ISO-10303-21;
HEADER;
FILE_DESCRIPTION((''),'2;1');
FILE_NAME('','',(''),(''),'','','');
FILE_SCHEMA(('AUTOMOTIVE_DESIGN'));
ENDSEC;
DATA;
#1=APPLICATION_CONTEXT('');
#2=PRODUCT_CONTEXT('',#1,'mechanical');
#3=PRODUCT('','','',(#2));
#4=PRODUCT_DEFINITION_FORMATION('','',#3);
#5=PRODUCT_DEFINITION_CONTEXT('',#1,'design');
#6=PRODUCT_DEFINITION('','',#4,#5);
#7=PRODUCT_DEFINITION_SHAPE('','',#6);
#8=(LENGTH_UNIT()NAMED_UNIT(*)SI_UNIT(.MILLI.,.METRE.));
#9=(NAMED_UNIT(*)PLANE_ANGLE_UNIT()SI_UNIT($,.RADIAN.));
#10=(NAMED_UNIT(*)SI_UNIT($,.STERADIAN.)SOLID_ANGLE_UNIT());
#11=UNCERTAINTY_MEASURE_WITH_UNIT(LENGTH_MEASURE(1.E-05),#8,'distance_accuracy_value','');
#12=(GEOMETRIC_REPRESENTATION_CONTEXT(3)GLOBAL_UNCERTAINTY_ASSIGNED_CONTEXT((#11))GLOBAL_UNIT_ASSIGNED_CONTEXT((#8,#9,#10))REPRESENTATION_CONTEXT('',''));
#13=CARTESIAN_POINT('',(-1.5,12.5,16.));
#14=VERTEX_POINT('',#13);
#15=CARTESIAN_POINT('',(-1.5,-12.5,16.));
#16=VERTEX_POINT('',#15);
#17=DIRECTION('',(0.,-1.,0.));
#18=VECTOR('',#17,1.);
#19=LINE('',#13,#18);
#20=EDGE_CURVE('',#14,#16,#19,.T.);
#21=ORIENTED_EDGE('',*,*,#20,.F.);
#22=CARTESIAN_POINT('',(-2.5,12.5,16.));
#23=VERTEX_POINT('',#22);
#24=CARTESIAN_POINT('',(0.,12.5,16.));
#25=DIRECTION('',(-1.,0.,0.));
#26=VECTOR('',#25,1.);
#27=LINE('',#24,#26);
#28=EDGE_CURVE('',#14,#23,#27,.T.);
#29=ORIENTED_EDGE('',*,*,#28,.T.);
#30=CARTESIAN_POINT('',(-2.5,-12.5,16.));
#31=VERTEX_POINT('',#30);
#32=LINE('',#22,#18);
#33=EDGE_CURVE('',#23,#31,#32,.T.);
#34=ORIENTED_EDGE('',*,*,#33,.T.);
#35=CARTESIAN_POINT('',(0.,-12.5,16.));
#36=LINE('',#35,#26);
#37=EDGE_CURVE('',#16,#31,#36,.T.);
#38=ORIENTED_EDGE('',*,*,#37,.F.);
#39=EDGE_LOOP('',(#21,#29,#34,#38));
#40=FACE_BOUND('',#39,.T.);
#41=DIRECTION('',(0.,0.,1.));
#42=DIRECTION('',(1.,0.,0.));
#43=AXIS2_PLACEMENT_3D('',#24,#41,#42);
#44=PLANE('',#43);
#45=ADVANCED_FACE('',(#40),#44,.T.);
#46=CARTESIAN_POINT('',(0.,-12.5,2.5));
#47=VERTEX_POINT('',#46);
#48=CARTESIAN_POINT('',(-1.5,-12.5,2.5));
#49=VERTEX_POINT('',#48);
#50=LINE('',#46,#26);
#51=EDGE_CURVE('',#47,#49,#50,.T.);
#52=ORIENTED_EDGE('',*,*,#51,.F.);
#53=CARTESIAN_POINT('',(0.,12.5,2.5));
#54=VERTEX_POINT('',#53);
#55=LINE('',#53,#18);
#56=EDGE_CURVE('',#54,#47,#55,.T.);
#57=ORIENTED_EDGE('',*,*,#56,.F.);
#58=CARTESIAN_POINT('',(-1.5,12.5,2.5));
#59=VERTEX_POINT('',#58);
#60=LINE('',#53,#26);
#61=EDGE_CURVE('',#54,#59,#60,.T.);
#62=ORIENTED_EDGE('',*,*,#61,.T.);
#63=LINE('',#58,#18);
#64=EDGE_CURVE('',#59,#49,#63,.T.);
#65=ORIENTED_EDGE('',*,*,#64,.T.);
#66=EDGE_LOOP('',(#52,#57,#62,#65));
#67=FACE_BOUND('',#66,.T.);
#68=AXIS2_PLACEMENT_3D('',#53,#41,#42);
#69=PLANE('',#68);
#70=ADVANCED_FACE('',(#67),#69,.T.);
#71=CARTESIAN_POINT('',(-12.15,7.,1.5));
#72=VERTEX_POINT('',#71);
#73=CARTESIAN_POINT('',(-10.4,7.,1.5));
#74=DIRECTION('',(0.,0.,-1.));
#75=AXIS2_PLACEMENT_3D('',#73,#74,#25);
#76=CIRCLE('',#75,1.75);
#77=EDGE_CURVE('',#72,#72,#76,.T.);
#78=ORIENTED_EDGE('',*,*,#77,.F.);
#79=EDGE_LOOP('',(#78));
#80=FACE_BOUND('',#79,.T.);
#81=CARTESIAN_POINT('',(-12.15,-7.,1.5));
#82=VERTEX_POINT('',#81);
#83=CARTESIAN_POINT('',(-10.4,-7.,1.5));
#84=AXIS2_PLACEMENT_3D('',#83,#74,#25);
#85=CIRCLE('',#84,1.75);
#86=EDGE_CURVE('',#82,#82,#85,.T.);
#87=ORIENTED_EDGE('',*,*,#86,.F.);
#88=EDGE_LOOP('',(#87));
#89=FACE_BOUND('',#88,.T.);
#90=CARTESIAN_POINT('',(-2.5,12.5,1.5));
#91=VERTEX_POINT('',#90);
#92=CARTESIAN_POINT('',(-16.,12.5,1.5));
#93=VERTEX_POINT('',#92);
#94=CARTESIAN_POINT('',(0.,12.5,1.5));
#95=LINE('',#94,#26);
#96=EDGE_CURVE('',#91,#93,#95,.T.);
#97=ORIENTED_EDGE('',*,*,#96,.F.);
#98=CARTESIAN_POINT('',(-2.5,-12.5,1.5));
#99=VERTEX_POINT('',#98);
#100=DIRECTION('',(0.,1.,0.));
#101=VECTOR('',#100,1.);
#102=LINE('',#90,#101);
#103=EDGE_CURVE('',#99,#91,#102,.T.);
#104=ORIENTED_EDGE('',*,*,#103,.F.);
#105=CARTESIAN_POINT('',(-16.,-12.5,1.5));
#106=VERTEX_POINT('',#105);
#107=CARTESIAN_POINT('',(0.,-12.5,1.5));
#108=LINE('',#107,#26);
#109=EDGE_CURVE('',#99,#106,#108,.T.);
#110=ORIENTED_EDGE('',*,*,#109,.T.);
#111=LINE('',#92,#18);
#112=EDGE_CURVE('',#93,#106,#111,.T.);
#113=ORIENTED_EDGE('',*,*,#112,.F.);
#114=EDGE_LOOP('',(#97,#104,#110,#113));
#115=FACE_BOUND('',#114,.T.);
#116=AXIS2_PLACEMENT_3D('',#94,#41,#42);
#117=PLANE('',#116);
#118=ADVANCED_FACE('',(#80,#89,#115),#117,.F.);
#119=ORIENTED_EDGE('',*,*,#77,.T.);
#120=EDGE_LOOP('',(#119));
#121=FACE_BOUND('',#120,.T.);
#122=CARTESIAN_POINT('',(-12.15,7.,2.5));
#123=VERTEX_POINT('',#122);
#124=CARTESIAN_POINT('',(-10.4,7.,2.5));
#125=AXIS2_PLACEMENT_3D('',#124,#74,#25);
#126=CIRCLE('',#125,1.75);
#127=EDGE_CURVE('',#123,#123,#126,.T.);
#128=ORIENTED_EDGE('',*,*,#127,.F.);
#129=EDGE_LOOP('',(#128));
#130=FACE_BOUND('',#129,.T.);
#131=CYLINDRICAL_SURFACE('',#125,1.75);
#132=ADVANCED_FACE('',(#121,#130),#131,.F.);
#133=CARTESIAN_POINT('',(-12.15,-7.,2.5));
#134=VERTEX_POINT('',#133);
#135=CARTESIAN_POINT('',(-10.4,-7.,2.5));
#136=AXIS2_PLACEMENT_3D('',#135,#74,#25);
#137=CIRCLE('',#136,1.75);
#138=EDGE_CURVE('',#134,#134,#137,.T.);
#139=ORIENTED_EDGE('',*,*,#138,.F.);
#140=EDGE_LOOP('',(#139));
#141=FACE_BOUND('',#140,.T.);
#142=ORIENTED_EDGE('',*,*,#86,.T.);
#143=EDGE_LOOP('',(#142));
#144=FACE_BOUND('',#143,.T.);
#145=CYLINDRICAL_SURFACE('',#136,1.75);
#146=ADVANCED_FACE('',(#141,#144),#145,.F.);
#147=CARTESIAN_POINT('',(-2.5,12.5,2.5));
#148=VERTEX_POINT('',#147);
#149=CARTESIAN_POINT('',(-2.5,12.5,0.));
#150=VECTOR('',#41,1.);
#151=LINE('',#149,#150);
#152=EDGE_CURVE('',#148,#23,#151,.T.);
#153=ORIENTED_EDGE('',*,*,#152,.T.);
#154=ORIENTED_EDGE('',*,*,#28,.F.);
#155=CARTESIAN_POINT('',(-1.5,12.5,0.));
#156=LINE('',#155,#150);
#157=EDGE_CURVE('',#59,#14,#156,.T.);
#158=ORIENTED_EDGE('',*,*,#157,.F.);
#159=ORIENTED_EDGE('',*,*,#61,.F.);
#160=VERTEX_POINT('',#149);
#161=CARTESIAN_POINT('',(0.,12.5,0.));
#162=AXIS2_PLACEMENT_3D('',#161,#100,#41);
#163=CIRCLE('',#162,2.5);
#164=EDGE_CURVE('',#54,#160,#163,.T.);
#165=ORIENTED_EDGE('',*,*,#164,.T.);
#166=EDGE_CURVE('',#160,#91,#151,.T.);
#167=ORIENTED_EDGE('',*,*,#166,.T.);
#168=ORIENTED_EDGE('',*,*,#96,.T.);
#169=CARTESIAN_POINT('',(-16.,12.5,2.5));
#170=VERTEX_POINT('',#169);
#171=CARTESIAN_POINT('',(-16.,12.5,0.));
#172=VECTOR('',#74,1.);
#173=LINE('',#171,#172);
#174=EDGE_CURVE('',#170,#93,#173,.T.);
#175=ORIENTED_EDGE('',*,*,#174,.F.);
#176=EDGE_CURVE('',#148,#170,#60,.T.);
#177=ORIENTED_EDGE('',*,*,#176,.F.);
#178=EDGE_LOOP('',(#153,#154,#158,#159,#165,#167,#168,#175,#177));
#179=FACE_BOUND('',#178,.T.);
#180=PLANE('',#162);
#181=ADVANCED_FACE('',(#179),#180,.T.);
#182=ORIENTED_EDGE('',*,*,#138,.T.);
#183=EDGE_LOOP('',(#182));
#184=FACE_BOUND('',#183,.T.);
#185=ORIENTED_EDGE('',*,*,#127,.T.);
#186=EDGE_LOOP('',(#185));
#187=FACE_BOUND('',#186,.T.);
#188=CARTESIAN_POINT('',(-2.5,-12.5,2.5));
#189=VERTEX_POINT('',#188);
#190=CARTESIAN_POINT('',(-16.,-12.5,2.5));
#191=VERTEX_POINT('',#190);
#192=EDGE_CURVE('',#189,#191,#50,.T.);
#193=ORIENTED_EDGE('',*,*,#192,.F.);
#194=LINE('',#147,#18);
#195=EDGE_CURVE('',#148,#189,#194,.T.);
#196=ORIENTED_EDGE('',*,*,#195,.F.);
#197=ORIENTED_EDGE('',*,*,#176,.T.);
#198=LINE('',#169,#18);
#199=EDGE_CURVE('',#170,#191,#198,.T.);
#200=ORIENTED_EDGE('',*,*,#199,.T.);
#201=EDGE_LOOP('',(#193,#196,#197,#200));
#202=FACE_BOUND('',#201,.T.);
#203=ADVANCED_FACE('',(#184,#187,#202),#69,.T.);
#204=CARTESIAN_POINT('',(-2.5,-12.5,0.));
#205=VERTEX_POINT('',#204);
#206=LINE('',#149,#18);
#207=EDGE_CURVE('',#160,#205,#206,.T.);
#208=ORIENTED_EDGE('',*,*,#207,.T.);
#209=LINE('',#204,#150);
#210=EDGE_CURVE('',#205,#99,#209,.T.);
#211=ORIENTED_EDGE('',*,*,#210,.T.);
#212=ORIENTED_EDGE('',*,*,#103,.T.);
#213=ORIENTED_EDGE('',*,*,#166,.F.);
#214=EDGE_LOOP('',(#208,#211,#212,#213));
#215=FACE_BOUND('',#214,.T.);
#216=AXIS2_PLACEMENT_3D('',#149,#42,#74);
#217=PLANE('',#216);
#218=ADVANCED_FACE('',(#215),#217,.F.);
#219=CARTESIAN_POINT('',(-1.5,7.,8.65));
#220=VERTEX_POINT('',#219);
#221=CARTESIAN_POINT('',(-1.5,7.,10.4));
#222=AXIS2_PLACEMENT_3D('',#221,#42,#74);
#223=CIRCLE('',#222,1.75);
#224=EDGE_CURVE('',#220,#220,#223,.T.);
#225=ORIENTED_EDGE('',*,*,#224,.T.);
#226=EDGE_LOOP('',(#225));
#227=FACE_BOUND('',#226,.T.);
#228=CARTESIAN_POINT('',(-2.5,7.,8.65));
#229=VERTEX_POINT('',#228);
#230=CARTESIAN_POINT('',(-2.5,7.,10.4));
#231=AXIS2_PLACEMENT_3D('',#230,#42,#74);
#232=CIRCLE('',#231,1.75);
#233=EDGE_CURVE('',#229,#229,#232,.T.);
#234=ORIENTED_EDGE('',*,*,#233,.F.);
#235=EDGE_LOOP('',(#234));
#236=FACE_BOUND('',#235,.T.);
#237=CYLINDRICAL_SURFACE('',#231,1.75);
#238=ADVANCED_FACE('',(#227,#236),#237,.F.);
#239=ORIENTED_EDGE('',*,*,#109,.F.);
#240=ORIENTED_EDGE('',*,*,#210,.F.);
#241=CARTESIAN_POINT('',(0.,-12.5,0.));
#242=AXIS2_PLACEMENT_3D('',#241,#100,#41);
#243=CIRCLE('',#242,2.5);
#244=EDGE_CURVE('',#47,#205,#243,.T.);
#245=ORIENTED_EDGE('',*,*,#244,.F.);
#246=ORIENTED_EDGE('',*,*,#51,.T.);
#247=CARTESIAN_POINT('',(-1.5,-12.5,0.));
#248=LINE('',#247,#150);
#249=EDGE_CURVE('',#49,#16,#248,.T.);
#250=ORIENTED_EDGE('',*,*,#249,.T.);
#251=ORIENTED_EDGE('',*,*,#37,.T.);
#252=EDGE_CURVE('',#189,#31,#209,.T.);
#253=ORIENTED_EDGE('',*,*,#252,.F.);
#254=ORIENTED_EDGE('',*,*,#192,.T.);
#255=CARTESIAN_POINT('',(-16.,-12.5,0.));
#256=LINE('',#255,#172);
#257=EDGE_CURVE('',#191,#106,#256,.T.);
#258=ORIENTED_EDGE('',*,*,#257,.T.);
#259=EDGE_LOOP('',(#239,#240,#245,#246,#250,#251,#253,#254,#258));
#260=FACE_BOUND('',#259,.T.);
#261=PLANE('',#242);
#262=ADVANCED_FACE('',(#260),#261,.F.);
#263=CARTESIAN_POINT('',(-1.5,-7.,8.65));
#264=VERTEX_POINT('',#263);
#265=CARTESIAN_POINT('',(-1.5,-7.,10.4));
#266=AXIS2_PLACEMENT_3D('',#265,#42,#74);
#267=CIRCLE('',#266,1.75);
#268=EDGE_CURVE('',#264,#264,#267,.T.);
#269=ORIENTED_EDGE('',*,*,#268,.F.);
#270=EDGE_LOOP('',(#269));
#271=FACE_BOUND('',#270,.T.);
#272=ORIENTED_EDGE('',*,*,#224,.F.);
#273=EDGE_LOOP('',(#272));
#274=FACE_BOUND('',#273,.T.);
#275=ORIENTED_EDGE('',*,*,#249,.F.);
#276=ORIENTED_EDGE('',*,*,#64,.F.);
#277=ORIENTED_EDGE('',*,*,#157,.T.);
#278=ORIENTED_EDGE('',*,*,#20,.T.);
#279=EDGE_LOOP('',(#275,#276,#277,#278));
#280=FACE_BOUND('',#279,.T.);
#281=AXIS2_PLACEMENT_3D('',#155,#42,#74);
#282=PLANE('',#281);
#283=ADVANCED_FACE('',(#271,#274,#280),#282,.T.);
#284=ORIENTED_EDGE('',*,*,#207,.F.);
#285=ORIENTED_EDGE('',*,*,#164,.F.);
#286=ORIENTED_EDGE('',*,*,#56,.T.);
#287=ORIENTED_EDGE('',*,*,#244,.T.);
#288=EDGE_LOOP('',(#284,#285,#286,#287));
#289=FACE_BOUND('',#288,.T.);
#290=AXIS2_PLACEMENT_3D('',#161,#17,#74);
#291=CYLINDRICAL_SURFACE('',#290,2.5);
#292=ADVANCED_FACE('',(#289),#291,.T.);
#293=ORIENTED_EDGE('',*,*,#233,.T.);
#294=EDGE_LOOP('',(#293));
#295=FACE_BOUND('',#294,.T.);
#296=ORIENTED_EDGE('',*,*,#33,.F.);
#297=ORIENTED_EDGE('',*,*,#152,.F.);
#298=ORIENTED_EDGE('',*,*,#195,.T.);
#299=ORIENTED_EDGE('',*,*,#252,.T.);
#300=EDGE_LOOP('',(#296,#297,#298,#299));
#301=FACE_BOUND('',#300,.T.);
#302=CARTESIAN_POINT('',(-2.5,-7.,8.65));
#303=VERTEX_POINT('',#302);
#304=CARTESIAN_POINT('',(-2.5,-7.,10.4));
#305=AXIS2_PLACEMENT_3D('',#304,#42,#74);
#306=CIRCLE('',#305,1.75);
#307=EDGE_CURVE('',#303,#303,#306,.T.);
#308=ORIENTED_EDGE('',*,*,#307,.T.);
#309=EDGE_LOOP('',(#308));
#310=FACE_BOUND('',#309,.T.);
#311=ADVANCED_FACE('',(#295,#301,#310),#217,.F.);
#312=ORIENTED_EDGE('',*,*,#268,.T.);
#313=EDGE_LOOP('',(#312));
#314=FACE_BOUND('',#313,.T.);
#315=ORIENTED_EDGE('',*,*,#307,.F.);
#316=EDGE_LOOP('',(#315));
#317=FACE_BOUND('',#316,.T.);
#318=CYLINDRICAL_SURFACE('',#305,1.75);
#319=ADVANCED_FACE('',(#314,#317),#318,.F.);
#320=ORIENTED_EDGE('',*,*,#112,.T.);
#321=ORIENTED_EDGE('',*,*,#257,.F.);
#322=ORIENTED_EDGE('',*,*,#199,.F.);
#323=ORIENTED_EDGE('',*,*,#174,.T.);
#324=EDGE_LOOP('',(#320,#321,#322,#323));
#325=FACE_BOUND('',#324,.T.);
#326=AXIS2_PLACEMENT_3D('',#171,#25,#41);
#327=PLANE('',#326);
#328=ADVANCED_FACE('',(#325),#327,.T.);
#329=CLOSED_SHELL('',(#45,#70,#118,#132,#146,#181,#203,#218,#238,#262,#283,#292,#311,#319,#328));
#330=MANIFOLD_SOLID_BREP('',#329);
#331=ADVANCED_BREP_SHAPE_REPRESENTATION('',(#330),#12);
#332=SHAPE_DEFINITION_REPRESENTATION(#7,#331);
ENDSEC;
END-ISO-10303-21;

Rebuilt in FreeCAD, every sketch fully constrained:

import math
import FreeCAD as App
import Part
import Sketcher
Q = App.Units.Quantity

doc = App.newDocument("Part")
params = doc.addObject("Spreadsheet::Sheet", "Params")
for row, (alias, value) in enumerate([
    ("sketch1_radius", "2.5 mm"),
    ("sketch1_radius2", "1.5 mm"),
    ("sketch1_width", "13.5 mm"),
    ("pad1_length", "25 mm"),
    ("pad2_length", "25 mm"),
    ("sketch3_diameter", "3.5 mm"),
    ("pocket1_length", "1 mm"),
    ("sketch4_diameter", "3.5 mm"),
    ("pocket2_length", "1 mm"),
], start=1):
    params.set(f"A{row}", alias)
    params.set(f"B{row}", "=" + value)
    params.setAlias(f"B{row}", alias)

body = doc.addObject("PartDesign::Body", "Body")

# Sketch on XZ plane
sketch1 = body.newObject("Sketcher::SketchObject", "Sketch")
sketch1.AttachmentSupport = (doc.getObject("XZ_Plane"), [""])
sketch1.MapMode = "FlatFace"
sketch1.addGeometry([
    Part.ArcOfCircle(Part.Circle(App.Vector(0, 0, 0), App.Vector(0, 0, 1), 2.5), math.radians(180), math.radians(450)),  # 0
    Part.LineSegment(App.Vector(-2.5, 0, 0), App.Vector(-2.5, 1.5, 0)),  # 1
    Part.LineSegment(App.Vector(-2.5, 1.5, 0), App.Vector(-16, 1.5, 0)),  # 2
    Part.LineSegment(App.Vector(-16, 1.5, 0), App.Vector(-16, 2.5, 0)),  # 3
    Part.LineSegment(App.Vector(-16, 2.5, 0), App.Vector(-2.5, 2.5, 0)),  # 4
    Part.LineSegment(App.Vector(-2.5, 2.5, 0), App.Vector(-2.5, 16, 0)),  # 5
    Part.LineSegment(App.Vector(-2.5, 16, 0), App.Vector(-1.5, 16, 0)),  # 6
    Part.LineSegment(App.Vector(-1.5, 16, 0), App.Vector(-1.5, 2.5, 0)),  # 7
    Part.LineSegment(App.Vector(-1.5, 2.5, 0), App.Vector(0, 2.5, 0)),  # 8
    Part.LineSegment(App.Vector(-1.5, 1.5, 0), App.Vector(-1.5, 0, 0)),  # 9
    Part.ArcOfCircle(Part.Circle(App.Vector(0, 0, 0), App.Vector(0, 0, 1), 1.5), math.radians(180), math.radians(450)),  # 10
    Part.LineSegment(App.Vector(0, 1.5, 0), App.Vector(-1.5, 1.5, 0)),  # 11
], False)
sketch1.addConstraint([
    Sketcher.Constraint("Tangent", 0, 1, 1, 1),
    Sketcher.Constraint("Coincident", 1, 2, 2, 1),
    Sketcher.Constraint("Coincident", 2, 2, 3, 1),
    Sketcher.Constraint("Coincident", 3, 2, 4, 1),
    Sketcher.Constraint("Coincident", 4, 2, 5, 1),
    Sketcher.Constraint("Coincident", 5, 2, 6, 1),
    Sketcher.Constraint("Coincident", 6, 2, 7, 1),
    Sketcher.Constraint("Coincident", 7, 2, 8, 1),
    Sketcher.Constraint("Tangent", 8, 2, 0, 2),
    Sketcher.Constraint("Tangent", 9, 2, 10, 1),
    Sketcher.Constraint("Tangent", 10, 2, 11, 1),
    Sketcher.Constraint("Coincident", 11, 2, 9, 1),
    Sketcher.Constraint("Vertical", 1),
    Sketcher.Constraint("Horizontal", 2),
    Sketcher.Constraint("Vertical", 3),
    Sketcher.Constraint("Horizontal", 4),
    Sketcher.Constraint("Vertical", 5),
    Sketcher.Constraint("Horizontal", 6),
    Sketcher.Constraint("Vertical", 7),
    Sketcher.Constraint("Horizontal", 8),
    Sketcher.Constraint("Vertical", 9),
    Sketcher.Constraint("Horizontal", 11),
    Sketcher.Constraint("Coincident", 0, 3, -1, 1),
    Sketcher.Constraint("Coincident", 10, 3, -1, 1),
    Sketcher.Constraint("Horizontal", 4, 2, 7, 2),
    Sketcher.Constraint("Horizontal", 2, 2, 10, 2),
    Sketcher.Constraint("Vertical", 1, 2, 4, 2),
    Sketcher.Constraint("Vertical", 7, 2, 9, 2),
    Sketcher.Constraint("Equal", 4, 5),
    Sketcher.Constraint("Radius", 0, Q("2.5 mm")),
    Sketcher.Constraint("Radius", 10, Q("1.5 mm")),
    Sketcher.Constraint("DistanceX", 2, 2, 2, 1, Q("13.5 mm")),
])
sketch1.setExpression("Constraints[29]", "Params.sketch1_radius")
sketch1.setExpression("Constraints[30]", "Params.sketch1_radius2")
sketch1.setExpression("Constraints[31]", "Params.sketch1_width")
pad1 = body.newObject("PartDesign::Pad", "Pad")
pad1.Profile = sketch1
pad1.setExpression("Length", "Params.pad1_length")
pad1.Midplane = True

# Sketch on XZ plane
sketch2 = body.newObject("Sketcher::SketchObject", "Sketch001")
sketch2.AttachmentSupport = (doc.getObject("XZ_Plane"), [""])
sketch2.MapMode = "FlatFace"
sketch2.AttachmentOffset = App.Placement(App.Vector(0, 0, -12.5), App.Rotation())
sketch2.addGeometry(Part.Circle(App.Vector(0, 0, 0), App.Vector(0, 0, 1), 2.1), False)
sketch2.addConstraint([
    Sketcher.Constraint("Coincident", 0, 3, -1, 1),
    Sketcher.Constraint("Diameter", 0, Q("4.242641 mm")),
])
pad2 = body.newObject("PartDesign::Pad", "Pad001")
pad2.Profile = sketch2
pad2.setExpression("Length", "Params.pad2_length")

# Sketch on XY plane
sketch3 = body.newObject("Sketcher::SketchObject", "Sketch002")
sketch3.AttachmentSupport = (doc.getObject("XY_Plane"), [""])
sketch3.MapMode = "FlatFace"
sketch3.AttachmentOffset = App.Placement(App.Vector(0, 0, 1.5), App.Rotation())
sketch3.addGeometry([
    Part.Circle(App.Vector(-10.4, -7, 0), App.Vector(0, 0, 1), 1.8),
    Part.Circle(App.Vector(-10.4, 7, 0), App.Vector(0, 0, 1), 1.8),
], False)
sketch3.addConstraint([
    Sketcher.Constraint("Equal", 0, 1),
    Sketcher.Constraint("Symmetric", 0, 3, 1, 3, -1),
    Sketcher.Constraint("Diameter", 0, Q("3.5 mm")),
    Sketcher.Constraint("DistanceY", 0, 3, -1, 1, Q("7 mm")),
    Sketcher.Constraint("DistanceX", 0, 3, -1, 1, Q("10.4 mm")),
])
sketch3.setExpression("Constraints[2]", "Params.sketch3_diameter")
pocket1 = body.newObject("PartDesign::Pocket", "Pocket")
pocket1.Profile = sketch3
pocket1.setExpression("Length", "Params.pocket1_length")
pocket1.Reversed = True

# Sketch on YZ plane
sketch4 = body.newObject("Sketcher::SketchObject", "Sketch003")
sketch4.AttachmentSupport = (doc.getObject("YZ_Plane"), [""])
sketch4.MapMode = "FlatFace"
sketch4.AttachmentOffset = App.Placement(App.Vector(0, 0, -1.5), App.Rotation())
sketch4.addGeometry([
    Part.Circle(App.Vector(-7, 10.4, 0), App.Vector(0, 0, 1), 1.8),
    Part.Circle(App.Vector(7, 10.4, 0), App.Vector(0, 0, 1), 1.8),
], False)
sketch4.addConstraint([
    Sketcher.Constraint("Equal", 0, 1),
    Sketcher.Constraint("Symmetric", 0, 3, 1, 3, -2),
    Sketcher.Constraint("Diameter", 0, Q("3.5 mm")),
    Sketcher.Constraint("DistanceX", 0, 3, -1, 1, Q("7 mm")),
    Sketcher.Constraint("DistanceY", -1, 1, 0, 3, Q("10.4 mm")),
])
sketch4.setExpression("Constraints[2]", "Params.sketch4_diameter")
pocket2 = body.newObject("PartDesign::Pocket", "Pocket001")
pocket2.Profile = sketch4
pocket2.setExpression("Length", "Params.pocket2_length")

doc.recompute()
